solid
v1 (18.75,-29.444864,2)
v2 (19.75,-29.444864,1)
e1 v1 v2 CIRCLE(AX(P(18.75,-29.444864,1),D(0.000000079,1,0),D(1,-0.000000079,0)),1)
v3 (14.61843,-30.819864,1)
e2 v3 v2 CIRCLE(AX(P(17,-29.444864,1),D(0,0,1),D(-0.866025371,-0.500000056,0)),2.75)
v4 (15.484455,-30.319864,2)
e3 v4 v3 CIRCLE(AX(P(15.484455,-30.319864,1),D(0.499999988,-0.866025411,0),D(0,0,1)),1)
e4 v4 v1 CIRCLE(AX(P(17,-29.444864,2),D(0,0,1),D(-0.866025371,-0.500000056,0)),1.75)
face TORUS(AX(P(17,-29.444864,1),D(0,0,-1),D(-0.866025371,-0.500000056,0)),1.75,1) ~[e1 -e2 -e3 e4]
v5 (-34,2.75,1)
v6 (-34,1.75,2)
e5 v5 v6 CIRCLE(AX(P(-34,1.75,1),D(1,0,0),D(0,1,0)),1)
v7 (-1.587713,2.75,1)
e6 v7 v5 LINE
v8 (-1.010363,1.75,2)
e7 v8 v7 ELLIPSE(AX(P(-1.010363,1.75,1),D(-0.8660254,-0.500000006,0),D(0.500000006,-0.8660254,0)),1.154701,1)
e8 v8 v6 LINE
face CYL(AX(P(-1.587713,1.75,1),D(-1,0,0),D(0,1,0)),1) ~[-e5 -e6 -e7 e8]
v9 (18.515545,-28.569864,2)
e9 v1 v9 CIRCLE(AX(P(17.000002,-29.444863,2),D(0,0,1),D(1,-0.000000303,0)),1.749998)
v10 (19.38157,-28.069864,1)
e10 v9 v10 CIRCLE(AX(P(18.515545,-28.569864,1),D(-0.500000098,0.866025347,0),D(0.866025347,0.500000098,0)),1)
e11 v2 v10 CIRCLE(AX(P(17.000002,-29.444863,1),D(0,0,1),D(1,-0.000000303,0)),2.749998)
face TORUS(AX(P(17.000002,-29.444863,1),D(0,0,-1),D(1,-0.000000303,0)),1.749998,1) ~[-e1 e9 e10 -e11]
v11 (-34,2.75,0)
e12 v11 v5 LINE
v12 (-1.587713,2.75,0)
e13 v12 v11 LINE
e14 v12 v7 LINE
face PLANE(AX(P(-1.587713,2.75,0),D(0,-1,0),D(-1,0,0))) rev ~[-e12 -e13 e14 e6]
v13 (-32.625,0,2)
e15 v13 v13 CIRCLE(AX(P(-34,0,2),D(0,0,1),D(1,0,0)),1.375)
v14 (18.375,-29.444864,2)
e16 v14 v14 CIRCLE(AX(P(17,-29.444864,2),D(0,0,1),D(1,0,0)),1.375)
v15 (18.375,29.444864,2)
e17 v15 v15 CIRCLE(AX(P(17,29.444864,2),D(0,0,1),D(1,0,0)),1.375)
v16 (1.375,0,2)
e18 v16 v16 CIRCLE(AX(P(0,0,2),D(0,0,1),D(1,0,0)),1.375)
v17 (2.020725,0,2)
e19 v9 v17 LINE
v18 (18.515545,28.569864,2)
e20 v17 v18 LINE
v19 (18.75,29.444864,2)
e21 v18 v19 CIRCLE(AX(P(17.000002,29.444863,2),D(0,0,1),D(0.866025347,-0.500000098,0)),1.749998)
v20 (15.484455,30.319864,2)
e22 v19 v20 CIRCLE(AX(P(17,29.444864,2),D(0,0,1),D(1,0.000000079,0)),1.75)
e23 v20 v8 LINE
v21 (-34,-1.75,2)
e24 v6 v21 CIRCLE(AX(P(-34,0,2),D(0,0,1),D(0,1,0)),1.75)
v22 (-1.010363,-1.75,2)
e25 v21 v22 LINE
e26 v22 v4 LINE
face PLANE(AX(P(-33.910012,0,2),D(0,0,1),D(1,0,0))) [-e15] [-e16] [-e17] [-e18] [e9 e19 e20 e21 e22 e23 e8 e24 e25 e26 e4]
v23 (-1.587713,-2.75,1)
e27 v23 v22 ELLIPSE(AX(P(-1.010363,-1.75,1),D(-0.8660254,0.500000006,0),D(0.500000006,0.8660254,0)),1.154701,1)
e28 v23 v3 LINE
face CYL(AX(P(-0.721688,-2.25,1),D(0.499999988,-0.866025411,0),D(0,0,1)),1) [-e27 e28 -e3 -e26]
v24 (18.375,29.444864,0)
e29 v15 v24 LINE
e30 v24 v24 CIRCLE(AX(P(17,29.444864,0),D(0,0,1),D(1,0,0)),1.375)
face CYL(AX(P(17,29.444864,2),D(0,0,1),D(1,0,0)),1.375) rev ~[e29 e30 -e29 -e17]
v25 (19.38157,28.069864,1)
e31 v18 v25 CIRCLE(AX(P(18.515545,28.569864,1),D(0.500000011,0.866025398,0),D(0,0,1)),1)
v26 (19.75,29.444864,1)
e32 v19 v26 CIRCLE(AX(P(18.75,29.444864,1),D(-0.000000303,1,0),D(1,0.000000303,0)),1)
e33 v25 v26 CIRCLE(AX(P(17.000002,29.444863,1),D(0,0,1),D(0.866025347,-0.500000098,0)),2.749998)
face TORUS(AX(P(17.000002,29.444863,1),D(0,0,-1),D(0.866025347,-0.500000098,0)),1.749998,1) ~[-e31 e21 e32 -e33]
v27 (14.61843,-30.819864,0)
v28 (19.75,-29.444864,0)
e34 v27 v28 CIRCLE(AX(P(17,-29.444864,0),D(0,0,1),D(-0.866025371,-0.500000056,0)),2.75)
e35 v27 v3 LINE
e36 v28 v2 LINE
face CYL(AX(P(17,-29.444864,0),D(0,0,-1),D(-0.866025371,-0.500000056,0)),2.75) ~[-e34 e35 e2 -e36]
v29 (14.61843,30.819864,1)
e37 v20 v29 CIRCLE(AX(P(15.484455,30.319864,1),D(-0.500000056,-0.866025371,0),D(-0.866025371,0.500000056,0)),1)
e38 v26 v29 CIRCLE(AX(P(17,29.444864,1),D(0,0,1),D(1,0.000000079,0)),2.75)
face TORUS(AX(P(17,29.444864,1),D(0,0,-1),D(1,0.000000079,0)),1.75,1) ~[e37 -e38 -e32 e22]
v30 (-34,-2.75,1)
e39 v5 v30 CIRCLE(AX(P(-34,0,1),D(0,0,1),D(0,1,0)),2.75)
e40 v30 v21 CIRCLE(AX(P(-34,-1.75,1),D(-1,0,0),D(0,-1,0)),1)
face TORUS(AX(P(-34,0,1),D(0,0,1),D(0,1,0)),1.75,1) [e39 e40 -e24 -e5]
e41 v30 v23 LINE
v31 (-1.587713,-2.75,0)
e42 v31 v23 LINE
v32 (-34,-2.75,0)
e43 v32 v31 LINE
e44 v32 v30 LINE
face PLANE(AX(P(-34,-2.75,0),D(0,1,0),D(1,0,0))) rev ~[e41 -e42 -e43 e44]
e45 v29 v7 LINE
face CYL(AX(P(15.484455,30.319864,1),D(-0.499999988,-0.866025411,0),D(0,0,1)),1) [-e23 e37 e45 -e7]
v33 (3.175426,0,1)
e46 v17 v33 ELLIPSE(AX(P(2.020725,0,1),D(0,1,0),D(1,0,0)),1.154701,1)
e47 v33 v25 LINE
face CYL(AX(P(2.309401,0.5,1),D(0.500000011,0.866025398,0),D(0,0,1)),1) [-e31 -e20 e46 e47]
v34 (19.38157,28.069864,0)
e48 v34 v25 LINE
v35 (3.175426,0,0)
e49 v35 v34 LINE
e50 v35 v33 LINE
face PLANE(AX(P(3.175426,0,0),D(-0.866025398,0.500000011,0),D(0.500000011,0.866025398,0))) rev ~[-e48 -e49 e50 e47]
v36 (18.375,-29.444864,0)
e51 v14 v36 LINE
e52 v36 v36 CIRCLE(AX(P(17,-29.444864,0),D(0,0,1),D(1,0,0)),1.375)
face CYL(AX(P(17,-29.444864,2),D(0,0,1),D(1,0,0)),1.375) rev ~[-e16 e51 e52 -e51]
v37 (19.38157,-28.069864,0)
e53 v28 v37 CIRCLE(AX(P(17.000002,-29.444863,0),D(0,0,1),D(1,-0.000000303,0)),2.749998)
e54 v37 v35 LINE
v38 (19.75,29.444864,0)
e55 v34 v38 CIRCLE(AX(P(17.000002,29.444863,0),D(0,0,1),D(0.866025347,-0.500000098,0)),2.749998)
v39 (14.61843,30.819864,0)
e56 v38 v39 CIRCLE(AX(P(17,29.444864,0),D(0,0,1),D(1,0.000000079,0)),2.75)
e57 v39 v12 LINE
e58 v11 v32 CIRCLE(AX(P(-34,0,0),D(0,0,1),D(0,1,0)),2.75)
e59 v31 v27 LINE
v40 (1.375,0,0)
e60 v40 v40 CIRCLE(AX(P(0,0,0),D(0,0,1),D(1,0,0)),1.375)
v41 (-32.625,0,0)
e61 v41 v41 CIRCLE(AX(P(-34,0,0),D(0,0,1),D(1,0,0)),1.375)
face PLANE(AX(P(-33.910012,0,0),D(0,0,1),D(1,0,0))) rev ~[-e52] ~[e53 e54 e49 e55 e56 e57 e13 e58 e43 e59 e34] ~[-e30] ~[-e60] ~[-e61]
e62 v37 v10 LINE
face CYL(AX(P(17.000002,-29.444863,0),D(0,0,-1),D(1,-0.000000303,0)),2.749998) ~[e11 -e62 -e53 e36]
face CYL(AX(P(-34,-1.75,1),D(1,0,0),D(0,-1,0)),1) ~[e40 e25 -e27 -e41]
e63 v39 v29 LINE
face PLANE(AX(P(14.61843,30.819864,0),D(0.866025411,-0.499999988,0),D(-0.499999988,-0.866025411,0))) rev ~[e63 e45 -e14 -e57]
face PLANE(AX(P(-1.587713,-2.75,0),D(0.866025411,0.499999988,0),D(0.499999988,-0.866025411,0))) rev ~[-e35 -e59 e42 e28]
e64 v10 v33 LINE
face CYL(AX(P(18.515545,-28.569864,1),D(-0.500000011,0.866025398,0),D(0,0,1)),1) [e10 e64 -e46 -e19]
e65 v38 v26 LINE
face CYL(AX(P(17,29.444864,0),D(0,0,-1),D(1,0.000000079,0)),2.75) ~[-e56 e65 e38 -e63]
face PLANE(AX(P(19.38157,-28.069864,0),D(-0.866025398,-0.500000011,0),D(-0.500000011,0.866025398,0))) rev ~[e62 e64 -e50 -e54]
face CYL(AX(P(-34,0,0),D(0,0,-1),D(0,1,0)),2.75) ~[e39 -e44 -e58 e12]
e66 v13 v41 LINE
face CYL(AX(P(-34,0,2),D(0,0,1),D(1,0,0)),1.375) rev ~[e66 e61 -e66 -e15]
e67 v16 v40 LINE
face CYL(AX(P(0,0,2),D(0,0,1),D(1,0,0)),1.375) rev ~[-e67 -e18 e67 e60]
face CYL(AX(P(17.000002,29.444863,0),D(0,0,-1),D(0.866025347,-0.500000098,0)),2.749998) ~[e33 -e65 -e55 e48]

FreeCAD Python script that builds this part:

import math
import FreeCAD as App
import Part
import Sketcher
from FreeCAD import Vector
Q = App.Units.Quantity


def edges_at(feature, points):
    """Names of the edges that pass closest to the given points."""
    edges = feature.Shape.Edges
    near = lambda p: min(range(len(edges)), key=lambda i: edges[i].distToShape(Part.Vertex(*p))[0])
    return sorted({f"Edge{near(p) + 1}" for p in points})

doc = App.newDocument("Part")
params = doc.addObject("Spreadsheet::Sheet", "Params")
for row, (alias, value) in enumerate([
    ("sketch1_radius", "2.75 mm"),
    ("pad1_length", "2 mm"),
    ("sketch2_diameter", "2.75 mm"),
    ("fillet_radius", "1 mm"),
], start=1):
    params.set(f"A{row}", alias)
    params.set(f"B{row}", "=" + value)
    params.setAlias(f"B{row}", alias)

body = doc.addObject("PartDesign::Body", "Body")

# Sketch on XY plane
sketch1 = doc.addObject("Sketcher::SketchObject", "Sketch")
body.addObject(sketch1)
sketch1.AttachmentSupport = (doc.XY_Plane, [""])
sketch1.MapMode = "FlatFace"
sketch1.addGeometry([
    Part.ArcOfCircle(Part.Circle(Vector(-34, 0, 0), Vector(0, 0, 1), 2.8), math.radians(90), math.radians(270)),  # 0
    Part.LineSegment(Vector(-34, -2.8, 0), Vector(-1.6, -2.8, 0)),  # 1
    Part.LineSegment(Vector(-1.6, -2.8, 0), Vector(14.6, -30.8, 0)),  # 2
    Part.ArcOfCircle(Part.Circle(Vector(17, -29.4, 0), Vector(0, 0, 1), 2.8), math.radians(-150), math.radians(0)),  # 3
    Part.ArcOfCircle(Part.Circle(Vector(17, -29.4, 0), Vector(0, 0, 1), 2.7), math.radians(0), math.radians(30)),  # 4
    Part.LineSegment(Vector(19.4, -28.1, 0), Vector(3.2, 0, 0)),  # 5
    Part.LineSegment(Vector(3.2, 0, 0), Vector(19.4, 28.1, 0)),  # 6
    Part.ArcOfCircle(Part.Circle(Vector(17, 29.4, 0), Vector(0, 0, 1), 2.7), math.radians(-30), math.radians(0)),  # 7
    Part.ArcOfCircle(Part.Circle(Vector(17, 29.4, 0), Vector(0, 0, 1), 2.8), math.radians(0), math.radians(150)),  # 8
    Part.LineSegment(Vector(14.6, 30.8, 0), Vector(-1.6, 2.8, 0)),  # 9
    Part.LineSegment(Vector(-1.6, 2.8, 0), Vector(-34, 2.8, 0)),  # 10
], False)
sketch1.addConstraint([
    Sketcher.Constraint("Tangent", 0, 2, 1, 1),
    Sketcher.Constraint("Coincident", 1, 2, 2, 1),
    Sketcher.Constraint("Tangent", 2, 2, 3, 1),
    Sketcher.Constraint("Tangent", 3, 2, 4, 1),
    Sketcher.Constraint("Tangent", 4, 2, 5, 1),
    Sketcher.Constraint("Coincident", 5, 2, 6, 1),
    Sketcher.Constraint("Tangent", 6, 2, 7, 1),
    Sketcher.Constraint("Tangent", 7, 2, 8, 1),
    Sketcher.Constraint("Tangent", 8, 2, 9, 1),
    Sketcher.Constraint("Coincident", 9, 2, 10, 1),
    Sketcher.Constraint("Tangent", 10, 2, 0, 1),
    Sketcher.Constraint("Horizontal", 1),
    Sketcher.Constraint("Horizontal", 10),
    Sketcher.Constraint("Equal", 0, 3),
    Sketcher.Constraint("Equal", 4, 7),
    Sketcher.Constraint("Equal", 3, 8),
    Sketcher.Constraint("Symmetric", 3, 3, 7, 3, -1),
    Sketcher.Constraint("Symmetric", 4, 2, 6, 2, -1),
    Sketcher.Constraint("Symmetric", 1, 2, 9, 2, -1),
    Sketcher.Constraint("Parallel", 2, 5),
    Sketcher.Constraint("Horizontal", 4, 3, 3, 2),
    Sketcher.Constraint("Horizontal", 8, 3, 7, 2),
    Sketcher.Constraint("Equal", 2, 5),
    Sketcher.Constraint("Radius", 0, Q("2.75 mm")),
    Sketcher.Constraint("DistanceX", 0, 3, -1, 1, Q("34 mm")),
    Sketcher.Constraint("DistanceX", -1, 1, 3, 3, Q("17 mm")),
    Sketcher.Constraint("DistanceX", 1, 1, 1, 2, Q("32.412287 mm")),
])
sketch1.setExpression("Constraints[23]", "Params.sketch1_radius")
pad1 = doc.addObject("PartDesign::Pad", "Pad")
body.addObject(pad1)
pad1.Profile = sketch1
pad1.setExpression("Length", "Params.pad1_length")

# Sketch on XY plane
sketch2 = doc.addObject("Sketcher::SketchObject", "Sketch001")
body.addObject(sketch2)
sketch2.AttachmentSupport = (doc.XY_Plane, [""])
sketch2.MapMode = "FlatFace"
sketch2.AttachmentOffset = App.Placement(Vector(0, 0, 2), App.Rotation())
sketch2.addGeometry([
    Part.Circle(Vector(-34, 0, 0), Vector(0, 0, 1), 1.4),
    Part.Circle(Vector(17, 29.4, 0), Vector(0, 0, 1), 1.4),
    Part.Circle(Vector(0, 0, 0), Vector(0, 0, 1), 1.4),
    Part.Circle(Vector(17, -29.4, 0), Vector(0, 0, 1), 1.4),
], False)
sketch2.addConstraint([
    Sketcher.Constraint("Coincident", 2, 3, -1, 1),
    Sketcher.Constraint("Equal", 0, 1),
    Sketcher.Constraint("Equal", 1, 2),
    Sketcher.Constraint("Equal", 2, 3),
    Sketcher.Constraint("Symmetric", 1, 3, 3, 3, -1),
    Sketcher.Constraint("PointOnObject", 0, 3, -1),
    Sketcher.Constraint("Diameter", 0, Q("2.75 mm")),
    Sketcher.Constraint("DistanceX", 0, 3, -1, 1, Q("34 mm")),
    Sketcher.Constraint("DistanceX", -1, 1, 1, 3, Q("17 mm")),
    Sketcher.Constraint("DistanceY", -1, 1, 1, 3, Q("29.444864 mm")),
])
sketch2.setExpression("Constraints[6]", "Params.sketch2_diameter")
pocket1 = doc.addObject("PartDesign::Pocket", "Pocket")
body.addObject(pocket1)
pocket1.Profile = sketch2
pocket1.Type = "ThroughAll"
doc.recompute()

fillet = doc.addObject("PartDesign::Fillet", "Fillet")
body.addObject(fillet)
fillet.Base = (pocket1, edges_at(pocket1, [
    (17.712, 32.101, 2),
    (11.278, 14.035, 2),
    (-17.794, 2.75, 2),
    (6.515, -16.785, 2),
]))
fillet.setExpression("Radius", "Params.fillet_radius")

doc.recompute()
